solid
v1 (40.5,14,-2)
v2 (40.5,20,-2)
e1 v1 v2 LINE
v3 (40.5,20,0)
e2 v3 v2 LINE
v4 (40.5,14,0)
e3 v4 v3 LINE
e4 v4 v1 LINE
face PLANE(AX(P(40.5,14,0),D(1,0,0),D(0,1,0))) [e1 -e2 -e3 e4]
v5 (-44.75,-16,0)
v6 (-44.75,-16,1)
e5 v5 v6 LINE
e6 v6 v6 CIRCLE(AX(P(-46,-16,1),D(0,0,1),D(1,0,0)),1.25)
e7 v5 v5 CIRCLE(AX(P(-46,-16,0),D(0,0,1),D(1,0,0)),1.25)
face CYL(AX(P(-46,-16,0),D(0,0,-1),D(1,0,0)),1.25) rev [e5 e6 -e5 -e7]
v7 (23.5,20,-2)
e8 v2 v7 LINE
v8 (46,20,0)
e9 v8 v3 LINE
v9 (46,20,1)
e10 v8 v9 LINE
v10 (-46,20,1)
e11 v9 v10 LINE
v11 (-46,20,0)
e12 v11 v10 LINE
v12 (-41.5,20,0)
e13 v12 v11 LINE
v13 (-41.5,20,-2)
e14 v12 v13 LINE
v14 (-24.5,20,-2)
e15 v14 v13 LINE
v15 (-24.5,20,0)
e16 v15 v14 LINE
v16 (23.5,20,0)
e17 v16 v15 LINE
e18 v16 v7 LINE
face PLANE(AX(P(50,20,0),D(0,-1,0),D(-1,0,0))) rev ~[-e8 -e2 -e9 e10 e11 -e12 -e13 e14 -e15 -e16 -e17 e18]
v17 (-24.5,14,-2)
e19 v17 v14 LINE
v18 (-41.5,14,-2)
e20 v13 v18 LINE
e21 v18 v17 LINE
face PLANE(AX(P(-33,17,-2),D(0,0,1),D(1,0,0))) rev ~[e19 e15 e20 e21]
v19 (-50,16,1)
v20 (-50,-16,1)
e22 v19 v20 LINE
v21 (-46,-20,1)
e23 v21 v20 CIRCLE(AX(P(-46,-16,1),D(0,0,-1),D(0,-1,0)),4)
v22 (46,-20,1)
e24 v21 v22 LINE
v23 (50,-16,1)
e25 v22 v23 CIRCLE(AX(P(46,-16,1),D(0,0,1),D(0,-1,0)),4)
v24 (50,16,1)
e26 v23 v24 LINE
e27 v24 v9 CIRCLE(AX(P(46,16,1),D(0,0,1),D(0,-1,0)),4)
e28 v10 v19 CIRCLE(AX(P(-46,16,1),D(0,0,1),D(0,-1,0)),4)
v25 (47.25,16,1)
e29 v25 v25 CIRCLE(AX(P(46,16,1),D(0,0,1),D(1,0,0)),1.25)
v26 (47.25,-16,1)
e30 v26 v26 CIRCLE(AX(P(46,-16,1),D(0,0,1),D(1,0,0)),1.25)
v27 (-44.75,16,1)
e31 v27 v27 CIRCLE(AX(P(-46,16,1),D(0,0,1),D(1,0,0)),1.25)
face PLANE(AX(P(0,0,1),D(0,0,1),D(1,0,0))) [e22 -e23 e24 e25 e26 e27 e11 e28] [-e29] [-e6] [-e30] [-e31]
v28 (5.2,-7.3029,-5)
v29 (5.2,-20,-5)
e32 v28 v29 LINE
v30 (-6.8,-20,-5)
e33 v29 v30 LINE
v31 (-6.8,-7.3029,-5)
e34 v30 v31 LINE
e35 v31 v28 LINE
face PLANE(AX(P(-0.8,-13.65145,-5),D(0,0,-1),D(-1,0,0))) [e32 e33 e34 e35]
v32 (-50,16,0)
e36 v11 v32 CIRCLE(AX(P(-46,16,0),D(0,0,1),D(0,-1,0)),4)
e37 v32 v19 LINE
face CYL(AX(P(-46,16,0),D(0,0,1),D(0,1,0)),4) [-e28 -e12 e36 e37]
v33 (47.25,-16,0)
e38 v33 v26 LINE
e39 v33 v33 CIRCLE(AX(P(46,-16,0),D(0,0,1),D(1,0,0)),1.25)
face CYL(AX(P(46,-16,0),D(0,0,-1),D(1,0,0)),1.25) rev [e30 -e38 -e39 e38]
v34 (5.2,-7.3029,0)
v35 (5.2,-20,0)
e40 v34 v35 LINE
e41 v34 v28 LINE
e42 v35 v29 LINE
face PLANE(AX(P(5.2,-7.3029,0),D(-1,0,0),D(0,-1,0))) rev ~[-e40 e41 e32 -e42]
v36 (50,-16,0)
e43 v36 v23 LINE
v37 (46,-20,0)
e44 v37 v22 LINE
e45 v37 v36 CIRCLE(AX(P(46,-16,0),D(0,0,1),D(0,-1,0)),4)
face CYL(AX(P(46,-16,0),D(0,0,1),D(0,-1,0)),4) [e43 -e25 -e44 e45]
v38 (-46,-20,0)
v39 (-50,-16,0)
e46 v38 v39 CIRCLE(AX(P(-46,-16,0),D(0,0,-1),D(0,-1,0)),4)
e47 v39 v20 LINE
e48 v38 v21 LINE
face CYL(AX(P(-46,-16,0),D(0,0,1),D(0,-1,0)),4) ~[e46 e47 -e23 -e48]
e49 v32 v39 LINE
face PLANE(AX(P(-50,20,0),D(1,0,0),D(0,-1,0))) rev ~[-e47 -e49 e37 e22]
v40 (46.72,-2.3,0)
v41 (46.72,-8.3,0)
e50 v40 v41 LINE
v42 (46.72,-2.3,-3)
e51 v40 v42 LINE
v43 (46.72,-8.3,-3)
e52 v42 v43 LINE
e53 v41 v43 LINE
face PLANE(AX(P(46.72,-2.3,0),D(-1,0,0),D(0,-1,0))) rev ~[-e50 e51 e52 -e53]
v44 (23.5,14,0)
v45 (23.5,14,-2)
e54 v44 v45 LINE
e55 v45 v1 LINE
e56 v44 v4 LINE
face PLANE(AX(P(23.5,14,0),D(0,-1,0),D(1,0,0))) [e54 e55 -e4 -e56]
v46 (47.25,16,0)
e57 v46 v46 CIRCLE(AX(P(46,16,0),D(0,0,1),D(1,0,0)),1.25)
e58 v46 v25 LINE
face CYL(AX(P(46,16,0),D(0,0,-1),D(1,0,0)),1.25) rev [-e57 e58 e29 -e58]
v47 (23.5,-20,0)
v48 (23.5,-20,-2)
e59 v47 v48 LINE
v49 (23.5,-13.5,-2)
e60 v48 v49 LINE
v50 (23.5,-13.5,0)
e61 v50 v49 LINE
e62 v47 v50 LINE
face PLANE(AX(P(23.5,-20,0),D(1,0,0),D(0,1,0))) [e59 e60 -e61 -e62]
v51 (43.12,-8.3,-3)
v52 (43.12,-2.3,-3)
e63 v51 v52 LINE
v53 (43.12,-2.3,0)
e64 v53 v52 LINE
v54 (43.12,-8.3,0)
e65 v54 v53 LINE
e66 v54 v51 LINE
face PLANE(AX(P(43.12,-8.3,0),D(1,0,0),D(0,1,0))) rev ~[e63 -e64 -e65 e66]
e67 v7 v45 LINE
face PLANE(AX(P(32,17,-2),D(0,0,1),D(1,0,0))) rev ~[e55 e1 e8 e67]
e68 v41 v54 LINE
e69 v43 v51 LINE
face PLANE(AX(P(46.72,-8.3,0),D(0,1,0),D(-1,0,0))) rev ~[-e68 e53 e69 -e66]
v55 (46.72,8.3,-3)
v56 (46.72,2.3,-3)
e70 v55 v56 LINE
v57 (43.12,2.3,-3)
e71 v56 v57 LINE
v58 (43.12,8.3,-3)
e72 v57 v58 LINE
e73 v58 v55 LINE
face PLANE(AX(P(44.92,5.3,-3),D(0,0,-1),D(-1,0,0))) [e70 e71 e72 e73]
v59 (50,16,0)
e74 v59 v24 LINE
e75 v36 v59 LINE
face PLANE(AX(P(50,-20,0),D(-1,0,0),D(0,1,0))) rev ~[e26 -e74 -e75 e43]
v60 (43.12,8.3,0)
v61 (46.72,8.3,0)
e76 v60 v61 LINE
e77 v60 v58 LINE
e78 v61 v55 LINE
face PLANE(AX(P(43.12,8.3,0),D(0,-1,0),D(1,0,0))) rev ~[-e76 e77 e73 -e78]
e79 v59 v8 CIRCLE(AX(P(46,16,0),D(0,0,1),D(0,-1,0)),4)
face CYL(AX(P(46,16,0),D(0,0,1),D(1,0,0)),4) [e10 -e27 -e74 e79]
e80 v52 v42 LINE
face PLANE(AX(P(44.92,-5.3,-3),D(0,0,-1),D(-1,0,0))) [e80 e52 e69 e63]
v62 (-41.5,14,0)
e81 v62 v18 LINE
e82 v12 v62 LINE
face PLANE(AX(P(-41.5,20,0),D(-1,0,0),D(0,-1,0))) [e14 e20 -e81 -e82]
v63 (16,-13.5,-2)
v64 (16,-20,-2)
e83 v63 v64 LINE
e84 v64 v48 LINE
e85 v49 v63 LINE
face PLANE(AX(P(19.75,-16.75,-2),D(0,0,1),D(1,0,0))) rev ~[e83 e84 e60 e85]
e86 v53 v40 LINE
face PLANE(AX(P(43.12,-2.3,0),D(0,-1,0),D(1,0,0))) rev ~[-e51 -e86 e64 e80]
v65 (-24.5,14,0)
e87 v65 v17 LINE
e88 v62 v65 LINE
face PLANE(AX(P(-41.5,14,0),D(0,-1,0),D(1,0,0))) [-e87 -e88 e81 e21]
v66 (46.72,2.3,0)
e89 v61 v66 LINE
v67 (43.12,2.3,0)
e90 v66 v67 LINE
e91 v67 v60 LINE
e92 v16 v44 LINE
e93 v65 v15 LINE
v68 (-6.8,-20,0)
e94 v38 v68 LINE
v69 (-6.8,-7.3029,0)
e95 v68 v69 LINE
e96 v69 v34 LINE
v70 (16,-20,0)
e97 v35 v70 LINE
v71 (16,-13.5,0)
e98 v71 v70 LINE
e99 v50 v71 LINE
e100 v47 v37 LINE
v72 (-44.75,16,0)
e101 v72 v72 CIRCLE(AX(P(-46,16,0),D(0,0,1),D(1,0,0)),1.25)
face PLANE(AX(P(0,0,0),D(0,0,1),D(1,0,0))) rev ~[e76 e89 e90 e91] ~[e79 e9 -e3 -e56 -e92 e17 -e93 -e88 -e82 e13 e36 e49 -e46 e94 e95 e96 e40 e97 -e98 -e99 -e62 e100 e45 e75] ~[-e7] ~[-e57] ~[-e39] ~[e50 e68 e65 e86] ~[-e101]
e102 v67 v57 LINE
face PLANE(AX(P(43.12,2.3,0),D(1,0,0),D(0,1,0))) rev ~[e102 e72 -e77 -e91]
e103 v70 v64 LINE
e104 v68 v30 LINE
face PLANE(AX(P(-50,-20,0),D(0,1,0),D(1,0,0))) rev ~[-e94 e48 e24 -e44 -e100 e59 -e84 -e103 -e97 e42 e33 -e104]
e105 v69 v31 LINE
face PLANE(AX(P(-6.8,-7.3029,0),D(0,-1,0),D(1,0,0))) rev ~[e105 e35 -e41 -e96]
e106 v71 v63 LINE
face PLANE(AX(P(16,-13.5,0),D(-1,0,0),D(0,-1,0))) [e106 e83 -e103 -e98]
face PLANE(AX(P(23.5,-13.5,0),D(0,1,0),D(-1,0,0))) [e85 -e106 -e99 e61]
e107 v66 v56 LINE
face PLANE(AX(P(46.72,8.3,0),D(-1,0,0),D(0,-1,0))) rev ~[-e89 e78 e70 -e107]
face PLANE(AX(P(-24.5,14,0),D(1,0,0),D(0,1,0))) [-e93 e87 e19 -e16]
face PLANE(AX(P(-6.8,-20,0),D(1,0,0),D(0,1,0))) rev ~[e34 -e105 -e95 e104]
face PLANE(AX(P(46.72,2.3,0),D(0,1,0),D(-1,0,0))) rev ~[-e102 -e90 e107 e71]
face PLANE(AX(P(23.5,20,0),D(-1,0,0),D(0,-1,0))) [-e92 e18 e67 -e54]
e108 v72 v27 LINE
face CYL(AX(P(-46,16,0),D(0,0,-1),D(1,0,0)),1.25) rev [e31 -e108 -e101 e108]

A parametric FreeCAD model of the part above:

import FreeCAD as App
import Part
import Sketcher
from FreeCAD import Vector


def edges_at(feature, points):
    """Names of the edges that pass closest to the given points."""
    edges = feature.Shape.Edges
    near = lambda p: min(range(len(edges)), key=lambda i: edges[i].distToShape(Part.Vertex(*p))[0])
    return sorted({f"Edge{near(p) + 1}" for p in points})

doc = App.newDocument("Part")
body = doc.addObject("PartDesign::Body", "Body")

# Sketch on XY plane
sketch1 = doc.addObject("Sketcher::SketchObject", "Sketch")
body.addObject(sketch1)
sketch1.AttachmentSupport = (doc.XY_Plane, [""])
sketch1.MapMode = "FlatFace"
sketch1.addGeometry(Part.LineSegment(Vector(-50, 20, 0), Vector(-50, -20, 0)), False)
sketch1.addGeometry(Part.LineSegment(Vector(-50, -20, 0), Vector(50, -20, 0)), False)
sketch1.addGeometry(Part.LineSegment(Vector(50, -20, 0), Vector(50, 20, 0)), False)
sketch1.addGeometry(Part.LineSegment(Vector(50, 20, 0), Vector(-50, 20, 0)), False)
sketch1.addGeometry(Part.Circle(Vector(-46, -16, 0), Vector(0, 0, 1), 1.2), False)
sketch1.addGeometry(Part.Circle(Vector(46, -16, 0), Vector(0, 0, 1), 1.2), False)
sketch1.addGeometry(Part.Circle(Vector(-46, 16, 0), Vector(0, 0, 1), 1.2), False)
sketch1.addGeometry(Part.Circle(Vector(46, 16, 0), Vector(0, 0, 1), 1.2), False)
sketch1.addConstraint(Sketcher.Constraint("Coincident", 0, 2, 1, 1))
sketch1.addConstraint(Sketcher.Constraint("Coincident", 1, 2, 2, 1))
sketch1.addConstraint(Sketcher.Constraint("Coincident", 2, 2, 3, 1))
sketch1.addConstraint(Sketcher.Constraint("Coincident", 3, 2, 0, 1))
sketch1.addConstraint(Sketcher.Constraint("Vertical", 0))
sketch1.addConstraint(Sketcher.Constraint("Horizontal", 1))
sketch1.addConstraint(Sketcher.Constraint("Vertical", 2))
sketch1.addConstraint(Sketcher.Constraint("Horizontal", 3))
sketch1.addConstraint(Sketcher.Constraint("Equal", 4, 5))
sketch1.addConstraint(Sketcher.Constraint("Equal", 5, 6))
sketch1.addConstraint(Sketcher.Constraint("Equal", 6, 7))
sketch1.addConstraint(Sketcher.Constraint("Symmetric", 5, 3, 6, 3, -1, 1))
sketch1.addConstraint(Sketcher.Constraint("Symmetric", 4, 3, 7, 3, -1, 1))
sketch1.addConstraint(Sketcher.Constraint("Symmetric", 0, 2, 2, 2, -1, 1))
sketch1.addConstraint(Sketcher.Constraint("Symmetric", 4, 3, 5, 3, -2))
sketch1.addConstraint(Sketcher.Constraint("Diameter", 4, 2.5))
sketch1.addConstraint(Sketcher.Constraint("DistanceX", 1, 1, 1, 2, 100.0))
sketch1.addConstraint(Sketcher.Constraint("DistanceY", 0, 2, 0, 1, 40.0))
sketch1.addConstraint(Sketcher.Constraint("DistanceX", 4, 3, -1, 1, 46.0))
sketch1.addConstraint(Sketcher.Constraint("DistanceY", 4, 3, -1, 1, 16.0))
pad1 = doc.addObject("PartDesign::Pad", "Pad")
body.addObject(pad1)
pad1.Profile = sketch1
pad1.Length = 1
doc.recompute()

fillet = doc.addObject("PartDesign::Fillet", "Fillet")
body.addObject(fillet)
fillet.Base = (pad1, edges_at(pad1, [
    (-50, -20, 0.5),
    (-50, 20, 0.5),
    (50, -20, 0.5),
    (50, 20, 0.5),
]))
fillet.Radius = 4

# Sketch on XY plane
sketch2 = doc.addObject("Sketcher::SketchObject", "Sketch001")
body.addObject(sketch2)
sketch2.AttachmentSupport = (doc.XY_Plane, [""])
sketch2.MapMode = "FlatFace"
sketch2.addGeometry(Part.LineSegment(Vector(-42, 14, 0), Vector(-24, 14, 0)), False)
sketch2.addGeometry(Part.LineSegment(Vector(-24, 14, 0), Vector(-24, 20, 0)), False)
sketch2.addGeometry(Part.LineSegment(Vector(-24, 20, 0), Vector(-42, 20, 0)), False)
sketch2.addGeometry(Part.LineSegment(Vector(-42, 20, 0), Vector(-42, 14, 0)), False)
sketch2.addGeometry(Part.LineSegment(Vector(40, 20, 0), Vector(24, 20, 0)), False)
sketch2.addGeometry(Part.LineSegment(Vector(24, 20, 0), Vector(24, 14, 0)), False)
sketch2.addGeometry(Part.LineSegment(Vector(24, 14, 0), Vector(40, 14, 0)), False)
sketch2.addGeometry(Part.LineSegment(Vector(40, 14, 0), Vector(40, 20, 0)), False)
sketch2.addConstraint(Sketcher.Constraint("Coincident", 0, 2, 1, 1))
sketch2.addConstraint(Sketcher.Constraint("Coincident", 1, 2, 2, 1))
sketch2.addConstraint(Sketcher.Constraint("Coincident", 2, 2, 3, 1))
sketch2.addConstraint(Sketcher.Constraint("Coincident", 3, 2, 0, 1))
sketch2.addConstraint(Sketcher.Constraint("Coincident", 4, 2, 5, 1))
sketch2.addConstraint(Sketcher.Constraint("Coincident", 5, 2, 6, 1))
sketch2.addConstraint(Sketcher.Constraint("Coincident", 6, 2, 7, 1))
sketch2.addConstraint(Sketcher.Constraint("Coincident", 7, 2, 4, 1))
sketch2.addConstraint(Sketcher.Constraint("Horizontal", 0))
sketch2.addConstraint(Sketcher.Constraint("Vertical", 1))
sketch2.addConstraint(Sketcher.Constraint("Horizontal", 2))
sketch2.addConstraint(Sketcher.Constraint("Vertical", 3))
sketch2.addConstraint(Sketcher.Constraint("Horizontal", 4))
sketch2.addConstraint(Sketcher.Constraint("Vertical", 5))
sketch2.addConstraint(Sketcher.Constraint("Horizontal", 6))
sketch2.addConstraint(Sketcher.Constraint("Vertical", 7))
sketch2.addConstraint(Sketcher.Constraint("Horizontal", 2, 2, 4, 2))
sketch2.addConstraint(Sketcher.Constraint("Horizontal", 3, 2, 5, 2))
sketch2.addConstraint(Sketcher.Constraint("Equal", 2, 4))
sketch2.addConstraint(Sketcher.Constraint("DistanceX", 0, 1, 0, 2, 17.0))
sketch2.addConstraint(Sketcher.Constraint("DistanceY", 1, 1, 1, 2, 6.0))
sketch2.addConstraint(Sketcher.Constraint("DistanceY", -1, 1, 0, 2, 14.0))
sketch2.addConstraint(Sketcher.Constraint("DistanceX", 1, 2, 4, 2, 48.0))
sketch2.addConstraint(Sketcher.Constraint("DistanceX", 0, 2, -1, 1, 24.5))
pad2 = doc.addObject("PartDesign::Pad", "Pad001")
body.addObject(pad2)
pad2.Profile = sketch2
pad2.Length = 2
pad2.Reversed = True

# Sketch on XY plane
sketch3 = doc.addObject("Sketcher::SketchObject", "Sketch002")
body.addObject(sketch3)
sketch3.AttachmentSupport = (doc.XY_Plane, [""])
sketch3.MapMode = "FlatFace"
sketch3.addGeometry(Part.LineSegment(Vector(5, -20, 0), Vector(5, -7, 0)), False)
sketch3.addGeometry(Part.LineSegment(Vector(5, -7, 0), Vector(-7, -7, 0)), False)
sketch3.addGeometry(Part.LineSegment(Vector(-7, -7, 0), Vector(-7, -20, 0)), False)
sketch3.addGeometry(Part.LineSegment(Vector(-7, -20, 0), Vector(5, -20, 0)), False)
sketch3.addConstraint(Sketcher.Constraint("Coincident", 0, 2, 1, 1))
sketch3.addConstraint(Sketcher.Constraint("Coincident", 1, 2, 2, 1))
sketch3.addConstraint(Sketcher.Constraint("Coincident", 2, 2, 3, 1))
sketch3.addConstraint(Sketcher.Constraint("Coincident", 3, 2, 0, 1))
sketch3.addConstraint(Sketcher.Constraint("Vertical", 0))
sketch3.addConstraint(Sketcher.Constraint("Horizontal", 1))
sketch3.addConstraint(Sketcher.Constraint("Vertical", 2))
sketch3.addConstraint(Sketcher.Constraint("Horizontal", 3))
sketch3.addConstraint(Sketcher.Constraint("DistanceX", 1, 2, 1, 1, 12.0))
sketch3.addConstraint(Sketcher.Constraint("DistanceY", 2, 2, -1, 1, 20.0))
sketch3.addConstraint(Sketcher.Constraint("DistanceX", -1, 1, 0, 2, 5.2))
sketch3.addConstraint(Sketcher.Constraint("DistanceY", 0, 1, 0, 2, 12.697))
pad3 = doc.addObject("PartDesign::Pad", "Pad002")
body.addObject(pad3)
pad3.Profile = sketch3
pad3.Length = 5
pad3.Reversed = True

# Sketch on XY plane
sketch4 = doc.addObject("Sketcher::SketchObject", "Sketch003")
body.addObject(sketch4)
sketch4.AttachmentSupport = (doc.XY_Plane, [""])
sketch4.MapMode = "FlatFace"
sketch4.addGeometry(Part.LineSegment(Vector(16, -20, 0), Vector(24, -20, 0)), False)
sketch4.addGeometry(Part.LineSegment(Vector(24, -20, 0), Vector(24, -14, 0)), False)
sketch4.addGeometry(Part.LineSegment(Vector(24, -14, 0), Vector(16, -14, 0)), False)
sketch4.addGeometry(Part.LineSegment(Vector(16, -14, 0), Vector(16, -20, 0)), False)
sketch4.addConstraint(Sketcher.Constraint("Coincident", 0, 2, 1, 1))
sketch4.addConstraint(Sketcher.Constraint("Coincident", 1, 2, 2, 1))
sketch4.addConstraint(Sketcher.Constraint("Coincident", 2, 2, 3, 1))
sketch4.addConstraint(Sketcher.Constraint("Coincident", 3, 2, 0, 1))
sketch4.addConstraint(Sketcher.Constraint("Horizontal", 0))
sketch4.addConstraint(Sketcher.Constraint("Vertical", 1))
sketch4.addConstraint(Sketcher.Constraint("Horizontal", 2))
sketch4.addConstraint(Sketcher.Constraint("Vertical", 3))
sketch4.addConstraint(Sketcher.Constraint("DistanceX", 0, 1, 0, 2, 7.5))
sketch4.addConstraint(Sketcher.Constraint("DistanceY", 1, 1, 1, 2, 6.5))
sketch4.addConstraint(Sketcher.Constraint("DistanceY", 0, 2, -1, 1, 20.0))
sketch4.addConstraint(Sketcher.Constraint("DistanceX", -1, 1, 2, 2, 16.0))
pad4 = doc.addObject("PartDesign::Pad", "Pad003")
body.addObject(pad4)
pad4.Profile = sketch4
pad4.Length = 2
pad4.Reversed = True

# Sketch on XY plane
sketch5 = doc.addObject("Sketcher::SketchObject", "Sketch004")
body.addObject(sketch5)
sketch5.AttachmentSupport = (doc.XY_Plane, [""])
sketch5.MapMode = "FlatFace"
sketch5.addGeometry(Part.LineSegment(Vector(46.7, -8.3, 0), Vector(46.7, -2.3, 0)), False)
sketch5.addGeometry(Part.LineSegment(Vector(46.7, -2.3, 0), Vector(43.1, -2.3, 0)), False)
sketch5.addGeometry(Part.LineSegment(Vector(43.1, -2.3, 0), Vector(43.1, -8.3, 0)), False)
sketch5.addGeometry(Part.LineSegment(Vector(43.1, -8.3, 0), Vector(46.7, -8.3, 0)), False)
sketch5.addGeometry(Part.LineSegment(Vector(46.7, 2.3, 0), Vector(46.7, 8.3, 0)), False)
sketch5.addGeometry(Part.LineSegment(Vector(46.7, 8.3, 0), Vector(43.1, 8.3, 0)), False)
sketch5.addGeometry(Part.LineSegment(Vector(43.1, 8.3, 0), Vector(43.1, 2.3, 0)), False)
sketch5.addGeometry(Part.LineSegment(Vector(43.1, 2.3, 0), Vector(46.7, 2.3, 0)), False)
sketch5.addConstraint(Sketcher.Constraint("Coincident", 0, 2, 1, 1))
sketch5.addConstraint(Sketcher.Constraint("Coincident", 1, 2, 2, 1))
sketch5.addConstraint(Sketcher.Constraint("Coincident", 2, 2, 3, 1))
sketch5.addConstraint(Sketcher.Constraint("Coincident", 3, 2, 0, 1))
sketch5.addConstraint(Sketcher.Constraint("Coincident", 4, 2, 5, 1))
sketch5.addConstraint(Sketcher.Constraint("Coincident", 5, 2, 6, 1))
sketch5.addConstraint(Sketcher.Constraint("Coincident", 6, 2, 7, 1))
sketch5.addConstraint(Sketcher.Constraint("Coincident", 7, 2, 4, 1))
sketch5.addConstraint(Sketcher.Constraint("Vertical", 0))
sketch5.addConstraint(Sketcher.Constraint("Horizontal", 1))
sketch5.addConstraint(Sketcher.Constraint("Vertical", 2))
sketch5.addConstraint(Sketcher.Constraint("Horizontal", 3))
sketch5.addConstraint(Sketcher.Constraint("Vertical", 4))
sketch5.addConstraint(Sketcher.Constraint("Horizontal", 5))
sketch5.addConstraint(Sketcher.Constraint("Vertical", 6))
sketch5.addConstraint(Sketcher.Constraint("Horizontal", 7))
sketch5.addConstraint(Sketcher.Constraint("Symmetric", 3, 2, 4, 2, -1))
sketch5.addConstraint(Sketcher.Constraint("Symmetric", 1, 2, 6, 2, -1))
sketch5.addConstraint(Sketcher.Constraint("DistanceY", 0, 1, 0, 2, 6.0))
sketch5.addConstraint(Sketcher.Constraint("DistanceX", 1, 2, 1, 1, 3.6))
sketch5.addConstraint(Sketcher.Constraint("DistanceY", 0, 2, -1, 1, 2.3))
sketch5.addConstraint(Sketcher.Constraint("DistanceX", -1, 1, 0, 2, 46.72))
pad5 = doc.addObject("PartDesign::Pad", "Pad004")
body.addObject(pad5)
pad5.Profile = sketch5
pad5.Length = 3
pad5.Reversed = True

doc.recompute()
